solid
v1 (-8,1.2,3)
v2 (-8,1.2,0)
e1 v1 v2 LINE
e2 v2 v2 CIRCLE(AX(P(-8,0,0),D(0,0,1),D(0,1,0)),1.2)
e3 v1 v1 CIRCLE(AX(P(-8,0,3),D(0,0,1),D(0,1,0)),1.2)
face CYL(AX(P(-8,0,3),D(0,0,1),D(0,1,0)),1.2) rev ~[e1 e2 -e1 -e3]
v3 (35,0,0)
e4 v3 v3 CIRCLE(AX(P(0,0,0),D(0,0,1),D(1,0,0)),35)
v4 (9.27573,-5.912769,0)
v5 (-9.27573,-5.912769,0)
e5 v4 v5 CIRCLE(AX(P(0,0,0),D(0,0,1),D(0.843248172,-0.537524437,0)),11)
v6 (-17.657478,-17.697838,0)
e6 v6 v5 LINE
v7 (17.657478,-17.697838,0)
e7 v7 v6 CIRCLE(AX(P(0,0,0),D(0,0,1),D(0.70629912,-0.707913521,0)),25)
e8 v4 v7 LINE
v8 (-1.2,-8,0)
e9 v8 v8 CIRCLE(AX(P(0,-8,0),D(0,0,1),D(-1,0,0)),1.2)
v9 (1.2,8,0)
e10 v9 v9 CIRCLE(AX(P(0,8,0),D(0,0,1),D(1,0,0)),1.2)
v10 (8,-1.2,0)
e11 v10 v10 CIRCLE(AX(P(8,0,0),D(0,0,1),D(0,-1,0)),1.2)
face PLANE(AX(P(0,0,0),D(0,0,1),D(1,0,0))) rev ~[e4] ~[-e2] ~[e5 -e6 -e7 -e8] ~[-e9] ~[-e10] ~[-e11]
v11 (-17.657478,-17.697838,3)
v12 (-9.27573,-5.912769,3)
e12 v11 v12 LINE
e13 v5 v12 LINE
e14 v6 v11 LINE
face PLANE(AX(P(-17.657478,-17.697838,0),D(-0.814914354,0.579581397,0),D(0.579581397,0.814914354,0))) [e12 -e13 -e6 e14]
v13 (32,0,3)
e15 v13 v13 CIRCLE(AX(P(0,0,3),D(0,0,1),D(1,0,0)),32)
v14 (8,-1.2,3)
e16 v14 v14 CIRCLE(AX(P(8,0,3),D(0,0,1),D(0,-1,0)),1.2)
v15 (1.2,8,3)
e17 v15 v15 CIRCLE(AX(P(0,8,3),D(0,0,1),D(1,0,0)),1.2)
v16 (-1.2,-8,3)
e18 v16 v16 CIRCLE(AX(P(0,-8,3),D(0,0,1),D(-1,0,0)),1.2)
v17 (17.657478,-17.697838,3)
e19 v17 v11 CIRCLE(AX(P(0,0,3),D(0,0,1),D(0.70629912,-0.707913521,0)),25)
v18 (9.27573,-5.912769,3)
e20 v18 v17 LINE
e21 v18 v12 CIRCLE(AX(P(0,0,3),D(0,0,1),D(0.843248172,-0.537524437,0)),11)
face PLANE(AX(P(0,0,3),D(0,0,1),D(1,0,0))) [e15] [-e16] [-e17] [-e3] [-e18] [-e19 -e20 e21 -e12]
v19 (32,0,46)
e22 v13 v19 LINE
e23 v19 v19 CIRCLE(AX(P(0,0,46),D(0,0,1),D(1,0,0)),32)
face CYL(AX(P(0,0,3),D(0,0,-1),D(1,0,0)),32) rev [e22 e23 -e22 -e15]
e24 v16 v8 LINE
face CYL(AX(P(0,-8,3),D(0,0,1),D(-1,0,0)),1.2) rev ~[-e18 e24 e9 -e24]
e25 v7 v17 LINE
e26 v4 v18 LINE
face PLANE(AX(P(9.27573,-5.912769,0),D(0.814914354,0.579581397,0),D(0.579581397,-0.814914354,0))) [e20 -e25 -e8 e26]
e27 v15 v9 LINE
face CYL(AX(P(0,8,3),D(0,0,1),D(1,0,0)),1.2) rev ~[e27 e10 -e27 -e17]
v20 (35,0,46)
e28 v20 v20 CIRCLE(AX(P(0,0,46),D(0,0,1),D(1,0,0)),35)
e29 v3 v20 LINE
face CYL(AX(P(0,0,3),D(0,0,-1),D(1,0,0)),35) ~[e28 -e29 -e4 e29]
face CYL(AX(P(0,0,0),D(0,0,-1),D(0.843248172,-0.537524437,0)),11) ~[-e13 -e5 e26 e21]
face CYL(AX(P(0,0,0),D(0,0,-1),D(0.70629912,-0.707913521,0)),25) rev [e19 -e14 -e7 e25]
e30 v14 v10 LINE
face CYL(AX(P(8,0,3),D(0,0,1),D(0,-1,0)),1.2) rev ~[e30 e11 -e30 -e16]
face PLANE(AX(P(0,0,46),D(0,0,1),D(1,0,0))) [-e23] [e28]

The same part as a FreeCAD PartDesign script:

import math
import FreeCAD as App
import Part
import Sketcher
Q = App.Units.Quantity

doc = App.newDocument("Part")
body = doc.addObject("PartDesign::Body", "Body")

# Sketch on XY plane
sketch1 = doc.addObject("Sketcher::SketchObject", "Sketch")
body.addObject(sketch1)
sketch1.AttachmentSupport = (doc.XY_Plane, [""])
sketch1.MapMode = "FlatFace"
sketch1.addGeometry([
    Part.Circle(App.Vector(0, 0, 0), App.Vector(0, 0, 1), 35),  # 0
    Part.LineSegment(App.Vector(17.657478, -17.697838, 0), App.Vector(9.27573, -5.912769, 0)),  # 1
    Part.ArcOfCircle(Part.Circle(App.Vector(0, 0, 0), App.Vector(0, 0, 1), 11), math.radians(-32.515275), math.radians(212.515275)),  # 2
    Part.LineSegment(App.Vector(-9.27573, -5.912769, 0), App.Vector(-17.657478, -17.697838, 0)),  # 3
    Part.ArcOfCircle(Part.Circle(App.Vector(0, 0, 0), App.Vector(0, 0, 1), 25), math.radians(-45.065406), math.radians(225.065406)),  # 4
], False)
sketch1.addConstraint([
    Sketcher.Constraint("Coincident", 1, 2, 2, 1),
    Sketcher.Constraint("Coincident", 2, 2, 3, 1),
    Sketcher.Constraint("Coincident", 3, 2, 4, 2),
    Sketcher.Constraint("Coincident", 4, 1, 1, 1),
    Sketcher.Constraint("Coincident", 0, 3, -1, 1),
    Sketcher.Constraint("Coincident", 2, 3, -1, 1),
    Sketcher.Constraint("Coincident", 4, 3, -1, 1),
    Sketcher.Constraint("Horizontal", 1, 2, 2, 2),
    Sketcher.Constraint("Horizontal", 3, 2, 4, 1),
    Sketcher.Constraint("Diameter", 0, Q("70 mm")),
    Sketcher.Constraint("Radius", 2, Q("11 mm")),
    Sketcher.Constraint("Radius", 4, Q("25 mm")),
    Sketcher.Constraint("DistanceX", -1, 1, 1, 2, Q("9.27573 mm")),
    Sketcher.Constraint("DistanceX", 3, 2, -1, 1, Q("17.657478 mm")),
])
pad1 = doc.addObject("PartDesign::Pad", "Pad")
body.addObject(pad1)
pad1.Profile = sketch1
pad1.Length = 3

# Sketch on XY plane
sketch2 = doc.addObject("Sketcher::SketchObject", "Sketch001")
body.addObject(sketch2)
sketch2.AttachmentSupport = (doc.XY_Plane, [""])
sketch2.MapMode = "FlatFace"
sketch2.AttachmentOffset = App.Placement(App.Vector(0, 0, 3), App.Rotation())
sketch2.addGeometry(Part.Circle(App.Vector(0, 8, 0), App.Vector(0, 0, 1), 1.2), False)
sketch2.addConstraint([
    Sketcher.Constraint("PointOnObject", 0, 3, -2),
    Sketcher.Constraint("Diameter", 0, Q("2.4 mm")),
    Sketcher.Constraint("DistanceY", -1, 1, 0, 3, Q("8 mm")),
])
pocket1 = doc.addObject("PartDesign::Pocket", "Pocket")
body.addObject(pocket1)
pocket1.Profile = sketch2
pocket1.Type = "ThroughAll"
doc.recompute()

polarpattern = doc.addObject("PartDesign::PolarPattern", "PolarPattern")
body.addObject(polarpattern)
polarpattern.Originals = [pocket1]
polarpattern.Axis = (doc.Z_Axis, [""])
polarpattern.Angle = 360
polarpattern.Occurrences = 4
body.Tip = polarpattern

# Sketch on XY plane
sketch3 = doc.addObject("Sketcher::SketchObject", "Sketch002")
body.addObject(sketch3)
sketch3.AttachmentSupport = (doc.XY_Plane, [""])
sketch3.MapMode = "FlatFace"
sketch3.AttachmentOffset = App.Placement(App.Vector(0, 0, 3), App.Rotation())
sketch3.addGeometry([
    Part.Circle(App.Vector(0, 0, 0), App.Vector(0, 0, 1), 35),
    Part.Circle(App.Vector(0, 0, 0), App.Vector(0, 0, 1), 32),
], False)
sketch3.addConstraint([
    Sketcher.Constraint("Coincident", 0, 3, -1, 1),
    Sketcher.Constraint("Coincident", 1, 3, -1, 1),
    Sketcher.Constraint("Diameter", 0, Q("70 mm")),
    Sketcher.Constraint("Diameter", 1, Q("64 mm")),
])
pad2 = doc.addObject("PartDesign::Pad", "Pad001")
body.addObject(pad2)
pad2.Profile = sketch3
pad2.Length = 43

doc.recompute()
